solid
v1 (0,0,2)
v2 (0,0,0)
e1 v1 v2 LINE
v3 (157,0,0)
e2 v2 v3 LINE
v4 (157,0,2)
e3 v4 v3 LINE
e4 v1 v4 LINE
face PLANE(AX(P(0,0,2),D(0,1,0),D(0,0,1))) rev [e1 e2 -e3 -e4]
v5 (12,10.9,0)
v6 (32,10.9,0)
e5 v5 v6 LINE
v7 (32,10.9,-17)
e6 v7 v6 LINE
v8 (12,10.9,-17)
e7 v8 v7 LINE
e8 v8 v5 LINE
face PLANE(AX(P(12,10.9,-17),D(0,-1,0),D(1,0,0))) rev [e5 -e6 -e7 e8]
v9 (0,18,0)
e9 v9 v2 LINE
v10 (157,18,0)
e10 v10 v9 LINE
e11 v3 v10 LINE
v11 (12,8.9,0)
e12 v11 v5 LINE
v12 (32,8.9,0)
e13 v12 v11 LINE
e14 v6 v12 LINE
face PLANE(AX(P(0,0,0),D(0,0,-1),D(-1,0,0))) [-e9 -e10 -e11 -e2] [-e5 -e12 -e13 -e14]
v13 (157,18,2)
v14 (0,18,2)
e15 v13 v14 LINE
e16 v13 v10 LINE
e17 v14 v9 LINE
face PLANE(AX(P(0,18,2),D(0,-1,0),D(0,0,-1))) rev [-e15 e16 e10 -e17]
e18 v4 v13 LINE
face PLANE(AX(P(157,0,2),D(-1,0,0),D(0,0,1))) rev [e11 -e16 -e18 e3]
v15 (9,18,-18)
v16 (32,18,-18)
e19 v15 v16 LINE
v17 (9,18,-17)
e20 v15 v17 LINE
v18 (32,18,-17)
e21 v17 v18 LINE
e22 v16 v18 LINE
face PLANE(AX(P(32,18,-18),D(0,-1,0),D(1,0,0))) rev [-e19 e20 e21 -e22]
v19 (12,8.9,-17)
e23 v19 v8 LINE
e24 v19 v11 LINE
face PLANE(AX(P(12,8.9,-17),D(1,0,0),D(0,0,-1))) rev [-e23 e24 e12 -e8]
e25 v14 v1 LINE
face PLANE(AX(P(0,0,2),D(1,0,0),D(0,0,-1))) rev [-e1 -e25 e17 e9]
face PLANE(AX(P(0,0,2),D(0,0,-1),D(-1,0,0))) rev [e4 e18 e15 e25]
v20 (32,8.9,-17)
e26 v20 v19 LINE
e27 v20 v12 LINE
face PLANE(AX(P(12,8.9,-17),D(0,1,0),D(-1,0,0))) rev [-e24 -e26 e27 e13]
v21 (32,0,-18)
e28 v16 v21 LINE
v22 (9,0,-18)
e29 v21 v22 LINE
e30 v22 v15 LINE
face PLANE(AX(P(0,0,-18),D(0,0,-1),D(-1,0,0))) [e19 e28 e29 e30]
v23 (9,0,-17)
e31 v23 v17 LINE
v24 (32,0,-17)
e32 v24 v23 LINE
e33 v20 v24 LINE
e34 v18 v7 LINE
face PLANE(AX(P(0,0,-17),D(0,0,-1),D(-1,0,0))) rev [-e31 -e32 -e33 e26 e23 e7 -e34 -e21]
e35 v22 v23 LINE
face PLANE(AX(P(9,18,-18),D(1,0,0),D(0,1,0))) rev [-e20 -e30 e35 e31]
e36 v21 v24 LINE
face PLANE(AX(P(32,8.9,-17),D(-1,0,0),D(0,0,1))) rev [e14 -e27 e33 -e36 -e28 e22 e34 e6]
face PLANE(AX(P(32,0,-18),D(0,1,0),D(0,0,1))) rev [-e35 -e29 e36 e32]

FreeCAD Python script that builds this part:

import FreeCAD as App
import Part
import Sketcher


def add_polygon(sketch, points):
    """Adds a closed chain of lines whose ends are joined by coincident constraints."""
    first, n = sketch.GeometryCount, len(points)
    for a, b in zip(points, points[1:] + points[:1]):
        sketch.addGeometry(Part.LineSegment(App.Vector(*a, 0), App.Vector(*b, 0)), False)
    for i in range(n):
        sketch.addConstraint(Sketcher.Constraint("Coincident", first + i, 2, first + (i + 1) % n, 1))

doc = App.newDocument("Part")
body = doc.addObject("PartDesign::Body", "Body")

# Sketch on XY plane
sketch1 = body.newObject("Sketcher::SketchObject", "Sketch")
sketch1.AttachmentSupport = (doc.getObject("XY_Plane"), [""])
sketch1.MapMode = "FlatFace"
add_polygon(sketch1, [(0, 18), (0, 0), (157, 0), (157, 18)])  # lines 0-3
sketch1.addConstraint(Sketcher.Constraint("Vertical", 0))
sketch1.addConstraint(Sketcher.Constraint("Horizontal", 1))
sketch1.addConstraint(Sketcher.Constraint("Vertical", 2))
sketch1.addConstraint(Sketcher.Constraint("Horizontal", 3))
sketch1.addConstraint(Sketcher.Constraint("Coincident", 0, 2, -1, 1))
sketch1.addConstraint(Sketcher.Constraint("DistanceX", 1, 1, 1, 2, 157.0))
sketch1.addConstraint(Sketcher.Constraint("DistanceY", 0, 2, 0, 1, 18.0))
pad1 = body.newObject("PartDesign::Pad", "Pad")
pad1.Profile = sketch1
pad1.Length = 2

# Sketch on XY plane
sketch2 = body.newObject("Sketcher::SketchObject", "Sketch001")
sketch2.AttachmentSupport = (doc.getObject("XY_Plane"), [""])
sketch2.MapMode = "FlatFace"
add_polygon(sketch2, [(32, 10.9), (32, 8.9), (12, 8.9), (12, 10.9)])  # lines 0-3
sketch2.addConstraint(Sketcher.Constraint("Vertical", 0))
sketch2.addConstraint(Sketcher.Constraint("Horizontal", 1))
sketch2.addConstraint(Sketcher.Constraint("Vertical", 2))
sketch2.addConstraint(Sketcher.Constraint("Horizontal", 3))
sketch2.addConstraint(Sketcher.Constraint("DistanceX", 1, 2, 1, 1, 20.0))
sketch2.addConstraint(Sketcher.Constraint("DistanceY", 0, 2, 0, 1, 2.0))
sketch2.addConstraint(Sketcher.Constraint("DistanceX", -1, 1, 0, 2, 32.0))
sketch2.addConstraint(Sketcher.Constraint("DistanceY", -1, 1, 0, 2, 8.9))
pad2 = body.newObject("PartDesign::Pad", "Pad001")
pad2.Profile = sketch2
pad2.Length = 17
pad2.Reversed = True

# Sketch on XY plane
sketch3 = body.newObject("Sketcher::SketchObject", "Sketch002")
sketch3.AttachmentSupport = (doc.getObject("XY_Plane"), [""])
sketch3.MapMode = "FlatFace"
sketch3.AttachmentOffset = App.Placement(App.Vector(0, 0, -17), App.Rotation())
add_polygon(sketch3, [(32, 18), (32, 0), (9, 0), (9, 18)])  # lines 0-3
sketch3.addConstraint(Sketcher.Constraint("Vertical", 0))
sketch3.addConstraint(Sketcher.Constraint("Horizontal", 1))
sketch3.addConstraint(Sketcher.Constraint("Vertical", 2))
sketch3.addConstraint(Sketcher.Constraint("Horizontal", 3))
sketch3.addConstraint(Sketcher.Constraint("PointOnObject", 0, 2, -1))
sketch3.addConstraint(Sketcher.Constraint("DistanceX", 1, 2, 1, 1, 23.0))
sketch3.addConstraint(Sketcher.Constraint("DistanceY", 0, 2, 0, 1, 18.0))
sketch3.addConstraint(Sketcher.Constraint("DistanceX", -1, 1, 0, 2, 32.0))
pad3 = body.newObject("PartDesign::Pad", "Pad002")
pad3.Profile = sketch3
pad3.Length = 1
pad3.Reversed = True

doc.recompute()
